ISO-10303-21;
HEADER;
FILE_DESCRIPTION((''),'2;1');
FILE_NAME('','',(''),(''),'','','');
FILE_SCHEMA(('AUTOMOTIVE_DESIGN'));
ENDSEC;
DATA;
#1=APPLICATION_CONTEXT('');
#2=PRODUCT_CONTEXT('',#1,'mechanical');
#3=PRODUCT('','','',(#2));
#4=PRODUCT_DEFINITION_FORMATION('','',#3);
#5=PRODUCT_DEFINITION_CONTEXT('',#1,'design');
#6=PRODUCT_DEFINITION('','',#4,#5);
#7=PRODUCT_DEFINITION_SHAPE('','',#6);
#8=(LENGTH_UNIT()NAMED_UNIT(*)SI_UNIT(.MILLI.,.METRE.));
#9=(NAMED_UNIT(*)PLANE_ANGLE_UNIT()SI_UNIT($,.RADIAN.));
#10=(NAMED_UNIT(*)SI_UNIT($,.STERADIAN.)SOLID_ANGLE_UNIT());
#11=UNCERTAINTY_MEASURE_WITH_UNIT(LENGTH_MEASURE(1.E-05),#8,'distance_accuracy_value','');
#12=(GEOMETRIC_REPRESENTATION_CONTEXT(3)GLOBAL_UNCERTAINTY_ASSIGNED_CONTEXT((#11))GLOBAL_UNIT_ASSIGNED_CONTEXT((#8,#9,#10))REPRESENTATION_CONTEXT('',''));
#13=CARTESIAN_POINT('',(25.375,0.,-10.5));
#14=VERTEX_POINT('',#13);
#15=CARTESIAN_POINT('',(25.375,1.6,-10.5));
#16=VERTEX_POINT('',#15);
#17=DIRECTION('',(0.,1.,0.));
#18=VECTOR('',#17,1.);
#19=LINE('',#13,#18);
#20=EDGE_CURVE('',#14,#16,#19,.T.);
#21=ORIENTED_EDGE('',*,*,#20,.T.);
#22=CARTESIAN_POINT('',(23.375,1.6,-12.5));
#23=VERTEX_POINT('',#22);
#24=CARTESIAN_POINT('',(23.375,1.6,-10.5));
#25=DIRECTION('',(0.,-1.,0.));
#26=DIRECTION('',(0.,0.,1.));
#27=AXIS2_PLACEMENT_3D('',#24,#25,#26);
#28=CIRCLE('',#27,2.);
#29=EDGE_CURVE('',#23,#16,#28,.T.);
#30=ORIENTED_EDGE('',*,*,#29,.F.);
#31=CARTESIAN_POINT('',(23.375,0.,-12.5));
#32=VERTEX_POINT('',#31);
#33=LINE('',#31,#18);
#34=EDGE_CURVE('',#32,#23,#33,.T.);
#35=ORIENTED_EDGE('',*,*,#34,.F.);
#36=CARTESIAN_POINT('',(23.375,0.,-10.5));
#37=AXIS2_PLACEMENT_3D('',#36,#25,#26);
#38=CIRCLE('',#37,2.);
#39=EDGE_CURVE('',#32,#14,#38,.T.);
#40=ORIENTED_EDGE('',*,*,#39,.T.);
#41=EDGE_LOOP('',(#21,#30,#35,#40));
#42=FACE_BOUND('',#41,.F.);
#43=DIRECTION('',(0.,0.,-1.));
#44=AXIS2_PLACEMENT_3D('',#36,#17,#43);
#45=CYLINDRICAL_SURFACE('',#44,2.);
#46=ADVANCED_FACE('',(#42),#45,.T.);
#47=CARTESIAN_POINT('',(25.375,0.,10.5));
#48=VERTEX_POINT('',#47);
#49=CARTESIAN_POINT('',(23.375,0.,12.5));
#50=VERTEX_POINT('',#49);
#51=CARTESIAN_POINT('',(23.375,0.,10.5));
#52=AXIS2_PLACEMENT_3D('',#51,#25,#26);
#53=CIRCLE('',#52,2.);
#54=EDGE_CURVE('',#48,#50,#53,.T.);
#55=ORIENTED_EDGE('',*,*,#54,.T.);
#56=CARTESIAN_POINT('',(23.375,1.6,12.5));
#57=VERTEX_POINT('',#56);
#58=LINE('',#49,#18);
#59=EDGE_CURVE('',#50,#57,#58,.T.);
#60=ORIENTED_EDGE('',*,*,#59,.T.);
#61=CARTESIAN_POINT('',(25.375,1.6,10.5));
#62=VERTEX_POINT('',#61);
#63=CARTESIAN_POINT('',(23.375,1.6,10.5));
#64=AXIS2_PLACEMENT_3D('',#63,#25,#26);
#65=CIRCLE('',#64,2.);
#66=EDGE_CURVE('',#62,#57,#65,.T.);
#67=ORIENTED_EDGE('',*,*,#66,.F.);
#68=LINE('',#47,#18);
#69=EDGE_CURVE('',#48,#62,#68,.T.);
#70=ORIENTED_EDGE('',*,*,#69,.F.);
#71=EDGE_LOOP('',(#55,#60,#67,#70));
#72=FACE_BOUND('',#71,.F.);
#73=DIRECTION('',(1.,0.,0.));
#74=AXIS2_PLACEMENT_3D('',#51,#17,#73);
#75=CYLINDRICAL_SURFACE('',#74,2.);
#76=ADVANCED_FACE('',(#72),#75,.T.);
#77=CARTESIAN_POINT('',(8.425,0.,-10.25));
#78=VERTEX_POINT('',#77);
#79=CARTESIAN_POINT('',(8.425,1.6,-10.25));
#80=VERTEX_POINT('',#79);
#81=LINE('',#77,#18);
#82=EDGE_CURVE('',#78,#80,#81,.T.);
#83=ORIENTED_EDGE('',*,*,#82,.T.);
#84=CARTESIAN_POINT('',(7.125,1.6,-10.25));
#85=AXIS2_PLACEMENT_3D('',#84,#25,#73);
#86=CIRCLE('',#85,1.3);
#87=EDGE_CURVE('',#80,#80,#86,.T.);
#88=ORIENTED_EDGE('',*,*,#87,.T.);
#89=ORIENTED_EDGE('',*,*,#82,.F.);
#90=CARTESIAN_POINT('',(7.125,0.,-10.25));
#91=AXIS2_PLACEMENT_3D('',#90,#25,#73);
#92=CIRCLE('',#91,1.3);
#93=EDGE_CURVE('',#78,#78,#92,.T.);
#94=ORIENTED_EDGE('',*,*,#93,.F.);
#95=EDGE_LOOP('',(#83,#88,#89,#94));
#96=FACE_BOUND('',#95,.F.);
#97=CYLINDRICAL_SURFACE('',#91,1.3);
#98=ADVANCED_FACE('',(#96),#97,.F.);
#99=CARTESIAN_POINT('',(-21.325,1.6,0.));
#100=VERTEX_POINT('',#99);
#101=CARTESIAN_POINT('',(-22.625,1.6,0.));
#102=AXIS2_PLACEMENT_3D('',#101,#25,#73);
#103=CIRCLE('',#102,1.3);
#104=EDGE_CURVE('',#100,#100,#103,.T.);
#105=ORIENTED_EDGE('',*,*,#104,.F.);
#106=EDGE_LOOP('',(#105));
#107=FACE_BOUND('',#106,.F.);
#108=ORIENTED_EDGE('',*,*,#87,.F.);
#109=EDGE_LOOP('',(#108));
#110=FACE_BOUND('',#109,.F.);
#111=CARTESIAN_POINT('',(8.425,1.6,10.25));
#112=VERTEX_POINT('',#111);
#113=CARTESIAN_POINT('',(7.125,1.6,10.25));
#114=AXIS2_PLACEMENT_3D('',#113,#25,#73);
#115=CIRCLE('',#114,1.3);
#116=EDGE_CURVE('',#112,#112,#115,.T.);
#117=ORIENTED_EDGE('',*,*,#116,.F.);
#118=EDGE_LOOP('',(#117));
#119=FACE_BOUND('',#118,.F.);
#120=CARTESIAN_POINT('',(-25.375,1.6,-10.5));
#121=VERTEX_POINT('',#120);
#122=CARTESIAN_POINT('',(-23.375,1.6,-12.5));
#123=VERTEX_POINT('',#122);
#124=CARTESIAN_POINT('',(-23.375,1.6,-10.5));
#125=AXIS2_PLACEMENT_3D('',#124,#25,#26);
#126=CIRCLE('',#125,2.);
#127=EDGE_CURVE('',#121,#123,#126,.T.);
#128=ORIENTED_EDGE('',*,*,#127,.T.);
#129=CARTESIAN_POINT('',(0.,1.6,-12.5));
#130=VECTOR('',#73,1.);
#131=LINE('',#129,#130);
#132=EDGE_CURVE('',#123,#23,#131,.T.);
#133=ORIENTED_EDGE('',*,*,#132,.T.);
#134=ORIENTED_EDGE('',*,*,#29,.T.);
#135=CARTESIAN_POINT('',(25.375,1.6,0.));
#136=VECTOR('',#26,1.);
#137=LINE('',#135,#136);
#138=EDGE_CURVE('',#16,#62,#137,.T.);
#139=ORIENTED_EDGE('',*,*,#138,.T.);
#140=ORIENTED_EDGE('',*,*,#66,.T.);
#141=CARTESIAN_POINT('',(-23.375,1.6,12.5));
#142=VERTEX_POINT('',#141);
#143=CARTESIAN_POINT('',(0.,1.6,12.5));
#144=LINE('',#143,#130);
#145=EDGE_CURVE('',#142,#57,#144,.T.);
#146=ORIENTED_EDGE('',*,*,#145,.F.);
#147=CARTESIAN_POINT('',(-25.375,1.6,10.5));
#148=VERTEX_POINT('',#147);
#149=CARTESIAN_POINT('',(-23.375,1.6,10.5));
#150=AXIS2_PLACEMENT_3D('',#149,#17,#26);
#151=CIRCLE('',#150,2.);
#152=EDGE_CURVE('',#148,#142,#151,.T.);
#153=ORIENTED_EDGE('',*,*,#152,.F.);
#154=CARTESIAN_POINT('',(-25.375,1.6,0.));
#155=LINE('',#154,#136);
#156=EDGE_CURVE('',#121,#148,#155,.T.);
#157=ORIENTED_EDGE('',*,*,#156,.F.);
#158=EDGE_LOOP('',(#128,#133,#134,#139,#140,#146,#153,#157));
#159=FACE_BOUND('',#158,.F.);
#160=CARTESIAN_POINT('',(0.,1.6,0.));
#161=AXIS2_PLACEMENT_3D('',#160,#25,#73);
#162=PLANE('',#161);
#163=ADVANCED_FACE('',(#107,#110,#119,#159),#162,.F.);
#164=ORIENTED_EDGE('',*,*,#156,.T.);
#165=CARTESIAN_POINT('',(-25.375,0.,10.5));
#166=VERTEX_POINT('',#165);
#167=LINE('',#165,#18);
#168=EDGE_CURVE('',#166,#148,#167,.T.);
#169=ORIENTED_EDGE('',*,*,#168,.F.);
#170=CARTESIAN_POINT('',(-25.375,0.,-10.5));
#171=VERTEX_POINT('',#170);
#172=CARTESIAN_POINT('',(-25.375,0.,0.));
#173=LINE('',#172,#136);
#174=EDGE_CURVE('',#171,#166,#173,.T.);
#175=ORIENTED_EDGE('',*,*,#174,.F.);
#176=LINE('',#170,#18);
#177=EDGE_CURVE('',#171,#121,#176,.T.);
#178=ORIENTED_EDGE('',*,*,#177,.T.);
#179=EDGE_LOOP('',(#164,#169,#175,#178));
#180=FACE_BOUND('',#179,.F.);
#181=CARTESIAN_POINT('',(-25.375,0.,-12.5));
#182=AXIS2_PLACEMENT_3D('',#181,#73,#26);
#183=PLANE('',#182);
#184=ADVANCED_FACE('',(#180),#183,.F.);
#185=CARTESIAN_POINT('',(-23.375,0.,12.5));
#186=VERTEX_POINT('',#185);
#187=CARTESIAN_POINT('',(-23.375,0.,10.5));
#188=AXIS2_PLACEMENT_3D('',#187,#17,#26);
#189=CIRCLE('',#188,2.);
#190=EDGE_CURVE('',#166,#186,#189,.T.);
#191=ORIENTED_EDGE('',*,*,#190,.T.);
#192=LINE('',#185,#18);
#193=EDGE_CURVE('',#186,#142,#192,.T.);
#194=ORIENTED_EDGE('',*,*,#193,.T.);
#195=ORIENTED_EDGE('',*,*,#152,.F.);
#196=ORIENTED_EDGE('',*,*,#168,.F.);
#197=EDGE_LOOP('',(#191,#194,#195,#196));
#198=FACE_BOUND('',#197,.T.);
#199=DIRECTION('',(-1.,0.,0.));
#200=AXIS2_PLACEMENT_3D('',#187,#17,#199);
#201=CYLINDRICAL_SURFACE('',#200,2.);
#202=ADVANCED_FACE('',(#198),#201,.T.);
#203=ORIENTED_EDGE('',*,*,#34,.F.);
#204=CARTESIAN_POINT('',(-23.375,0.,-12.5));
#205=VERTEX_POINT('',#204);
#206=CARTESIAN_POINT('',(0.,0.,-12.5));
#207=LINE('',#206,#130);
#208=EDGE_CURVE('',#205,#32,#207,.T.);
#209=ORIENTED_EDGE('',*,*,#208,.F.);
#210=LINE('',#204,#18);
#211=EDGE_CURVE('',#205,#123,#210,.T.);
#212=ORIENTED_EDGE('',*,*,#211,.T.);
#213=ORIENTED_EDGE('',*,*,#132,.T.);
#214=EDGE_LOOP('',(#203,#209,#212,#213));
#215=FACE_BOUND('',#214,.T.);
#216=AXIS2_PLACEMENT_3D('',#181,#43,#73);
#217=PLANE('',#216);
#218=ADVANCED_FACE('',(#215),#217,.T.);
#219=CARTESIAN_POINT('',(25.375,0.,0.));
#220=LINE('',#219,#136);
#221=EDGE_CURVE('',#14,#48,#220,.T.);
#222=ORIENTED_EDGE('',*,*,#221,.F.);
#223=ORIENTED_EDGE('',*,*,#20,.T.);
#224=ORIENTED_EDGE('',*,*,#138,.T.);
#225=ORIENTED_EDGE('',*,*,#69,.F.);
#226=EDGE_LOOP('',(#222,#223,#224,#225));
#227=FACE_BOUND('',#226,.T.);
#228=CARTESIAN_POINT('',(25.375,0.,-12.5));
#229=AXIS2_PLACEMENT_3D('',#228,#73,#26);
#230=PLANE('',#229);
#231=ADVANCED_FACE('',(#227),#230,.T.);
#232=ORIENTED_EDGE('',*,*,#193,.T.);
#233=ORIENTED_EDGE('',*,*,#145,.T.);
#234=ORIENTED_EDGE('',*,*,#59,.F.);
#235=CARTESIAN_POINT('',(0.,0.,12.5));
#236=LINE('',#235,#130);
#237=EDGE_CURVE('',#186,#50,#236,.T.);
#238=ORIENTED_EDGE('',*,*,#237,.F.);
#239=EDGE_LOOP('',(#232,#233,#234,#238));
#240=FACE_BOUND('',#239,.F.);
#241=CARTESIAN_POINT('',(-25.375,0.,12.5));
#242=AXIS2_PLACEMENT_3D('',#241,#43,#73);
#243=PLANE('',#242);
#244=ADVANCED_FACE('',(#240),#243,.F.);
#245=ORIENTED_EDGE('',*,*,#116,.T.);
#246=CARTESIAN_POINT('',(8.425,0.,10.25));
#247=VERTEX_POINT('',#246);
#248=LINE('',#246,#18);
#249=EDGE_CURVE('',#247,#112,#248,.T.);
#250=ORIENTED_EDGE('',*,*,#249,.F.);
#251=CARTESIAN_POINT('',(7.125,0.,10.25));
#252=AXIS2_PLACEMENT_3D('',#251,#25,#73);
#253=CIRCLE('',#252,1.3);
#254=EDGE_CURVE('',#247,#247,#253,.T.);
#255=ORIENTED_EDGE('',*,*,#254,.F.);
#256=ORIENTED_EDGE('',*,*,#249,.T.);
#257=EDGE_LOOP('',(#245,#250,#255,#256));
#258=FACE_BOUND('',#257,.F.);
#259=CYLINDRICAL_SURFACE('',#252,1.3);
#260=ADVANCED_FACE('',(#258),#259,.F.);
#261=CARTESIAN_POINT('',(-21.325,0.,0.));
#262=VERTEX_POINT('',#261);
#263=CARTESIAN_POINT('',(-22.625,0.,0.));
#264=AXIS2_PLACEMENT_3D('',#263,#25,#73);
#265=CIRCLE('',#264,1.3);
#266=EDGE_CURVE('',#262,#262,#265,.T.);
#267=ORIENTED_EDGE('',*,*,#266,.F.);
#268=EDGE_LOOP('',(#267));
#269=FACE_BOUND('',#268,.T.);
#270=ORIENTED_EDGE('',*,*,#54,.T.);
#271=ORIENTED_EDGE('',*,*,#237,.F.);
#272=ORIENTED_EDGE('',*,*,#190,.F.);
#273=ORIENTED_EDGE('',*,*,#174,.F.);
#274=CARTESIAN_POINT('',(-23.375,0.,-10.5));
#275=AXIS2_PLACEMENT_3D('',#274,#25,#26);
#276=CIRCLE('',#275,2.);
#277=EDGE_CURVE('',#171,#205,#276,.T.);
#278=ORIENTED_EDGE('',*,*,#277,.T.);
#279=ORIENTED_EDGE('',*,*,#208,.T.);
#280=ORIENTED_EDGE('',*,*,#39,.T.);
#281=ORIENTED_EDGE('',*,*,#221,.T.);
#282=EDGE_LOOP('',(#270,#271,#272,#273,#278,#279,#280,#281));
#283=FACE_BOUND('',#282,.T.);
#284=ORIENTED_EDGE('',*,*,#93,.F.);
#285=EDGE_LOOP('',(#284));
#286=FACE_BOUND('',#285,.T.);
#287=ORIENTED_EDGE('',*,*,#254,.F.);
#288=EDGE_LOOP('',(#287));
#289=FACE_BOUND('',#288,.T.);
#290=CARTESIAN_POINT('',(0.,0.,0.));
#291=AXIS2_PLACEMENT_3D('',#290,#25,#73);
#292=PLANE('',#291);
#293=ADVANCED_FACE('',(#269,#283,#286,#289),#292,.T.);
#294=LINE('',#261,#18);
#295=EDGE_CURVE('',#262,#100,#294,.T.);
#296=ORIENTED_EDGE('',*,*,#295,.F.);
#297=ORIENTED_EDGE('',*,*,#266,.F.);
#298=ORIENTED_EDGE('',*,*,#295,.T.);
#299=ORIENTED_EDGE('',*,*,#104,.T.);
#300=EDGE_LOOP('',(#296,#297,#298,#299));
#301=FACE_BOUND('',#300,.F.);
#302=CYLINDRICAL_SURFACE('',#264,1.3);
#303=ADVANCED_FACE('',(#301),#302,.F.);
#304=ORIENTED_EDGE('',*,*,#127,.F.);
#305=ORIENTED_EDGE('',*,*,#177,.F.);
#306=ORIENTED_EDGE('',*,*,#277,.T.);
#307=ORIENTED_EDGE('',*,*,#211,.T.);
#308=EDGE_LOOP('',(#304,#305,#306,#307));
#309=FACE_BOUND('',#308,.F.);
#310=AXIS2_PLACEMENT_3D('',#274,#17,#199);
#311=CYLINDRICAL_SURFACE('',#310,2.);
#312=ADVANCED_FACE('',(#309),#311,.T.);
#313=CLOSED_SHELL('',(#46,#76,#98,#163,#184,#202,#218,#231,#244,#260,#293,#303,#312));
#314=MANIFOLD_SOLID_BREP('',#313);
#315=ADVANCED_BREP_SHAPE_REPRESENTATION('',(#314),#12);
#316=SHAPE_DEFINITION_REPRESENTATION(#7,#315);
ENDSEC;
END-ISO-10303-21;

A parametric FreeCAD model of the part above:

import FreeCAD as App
import Part
import Sketcher

V = App.Vector


def edges_at(feature, points):
    """Names of the edges that pass closest to the given points."""
    edges = feature.Shape.Edges
    near = lambda p: min(range(len(edges)), key=lambda i: edges[i].distToShape(Part.Vertex(*p))[0])
    return sorted({f"Edge{near(p) + 1}" for p in points})

doc = App.newDocument("Part")
params = doc.addObject("Spreadsheet::Sheet", "Params")
for row, (alias, value) in enumerate([
    ("sketch1_height", "25 mm"),
    ("sketch1_width", "50.75 mm"),
    ("pad1_length", "1.6 mm"),
    ("fillet_radius", "2 mm"),
    ("sketch2_diameter", "2.6 mm"),
], start=1):
    params.set(f"A{row}", alias)
    params.set(f"B{row}", "=" + value)
    params.setAlias(f"B{row}", alias)

body = doc.addObject("PartDesign::Body", "Body")

sketch1 = doc.addObject("Sketcher::SketchObject", "Sketch")
body.addObject(sketch1)
sketch1.AttachmentSupport = (doc.XZ_Plane, [""])
sketch1.MapMode = "FlatFace"
sketch1.addGeometry([
    Part.LineSegment(V(-25.375, 12.5, 0), V(-25.375, -12.5, 0)),
    Part.LineSegment(V(-25.375, -12.5, 0), V(25.375, -12.5, 0)),
    Part.LineSegment(V(25.375, -12.5, 0), V(25.375, 12.5, 0)),
    Part.LineSegment(V(25.375, 12.5, 0), V(-25.375, 12.5, 0)),
], False)
sketch1.addConstraint([
    Sketcher.Constraint("Coincident", 0, 2, 1, 1),
    Sketcher.Constraint("Coincident", 1, 2, 2, 1),
    Sketcher.Constraint("Coincident", 2, 2, 3, 1),
    Sketcher.Constraint("Coincident", 3, 2, 0, 1),
    Sketcher.Constraint("Vertical", 0),
    Sketcher.Constraint("Horizontal", 1),
    Sketcher.Constraint("Vertical", 2),
    Sketcher.Constraint("Horizontal", 3),
    Sketcher.Constraint("Symmetric", 0, 2, 2, 2, -1, 1),
    Sketcher.Constraint("DistanceY", 0, 2, 0, 1, 25.0),
    Sketcher.Constraint("DistanceX", 1, 1, 1, 2, 50.75),
])
sketch1.setExpression("Constraints[9]", "Params.sketch1_height")
sketch1.setExpression("Constraints[10]", "Params.sketch1_width")
pad1 = doc.addObject("PartDesign::Pad", "Pad")
body.addObject(pad1)
pad1.Profile = sketch1
pad1.setExpression("Length", "Params.pad1_length")
pad1.Reversed = True
doc.recompute()

fillet = doc.addObject("PartDesign::Fillet", "Fillet")
body.addObject(fillet)
fillet.Base = (pad1, edges_at(pad1, [
    (25.375, 0.8, 12.5),
    (-25.375, 0.8, 12.5),
    (-25.375, 0.8, -12.5),
    (25.375, 0.8, -12.5),
]))
fillet.setExpression("Radius", "Params.fillet_radius")

sketch2 = doc.addObject("Sketcher::SketchObject", "Sketch001")
body.addObject(sketch2)
sketch2.AttachmentSupport = (doc.XZ_Plane, [""])
sketch2.MapMode = "FlatFace"
sketch2.addGeometry([
    Part.Circle(V(-22.625, 0, 0), V(0, 0, 1), 1.3),
    Part.Circle(V(7.125, 10.25, 0), V(0, 0, 1), 1.3),
    Part.Circle(V(7.125, -10.25, 0), V(0, 0, 1), 1.3),
], False)
sketch2.addConstraint([
    Sketcher.Constraint("Equal", 0, 1),
    Sketcher.Constraint("Equal", 1, 2),
    Sketcher.Constraint("Symmetric", 1, 3, 2, 3, -1),
    Sketcher.Constraint("PointOnObject", 0, 3, -1),
    Sketcher.Constraint("Diameter", 0, 2.6),
    Sketcher.Constraint("DistanceY", 2, 3, 1, 3, 20.5),
    Sketcher.Constraint("DistanceX", 0, 3, 1, 3, 29.75),
    Sketcher.Constraint("DistanceX", 0, 3, -1, 1, 22.625),
])
sketch2.setExpression("Constraints[4]", "Params.sketch2_diameter")
pocket1 = doc.addObject("PartDesign::Pocket", "Pocket")
body.addObject(pocket1)
pocket1.Profile = sketch2
pocket1.Type = "ThroughAll"

doc.recompute()
